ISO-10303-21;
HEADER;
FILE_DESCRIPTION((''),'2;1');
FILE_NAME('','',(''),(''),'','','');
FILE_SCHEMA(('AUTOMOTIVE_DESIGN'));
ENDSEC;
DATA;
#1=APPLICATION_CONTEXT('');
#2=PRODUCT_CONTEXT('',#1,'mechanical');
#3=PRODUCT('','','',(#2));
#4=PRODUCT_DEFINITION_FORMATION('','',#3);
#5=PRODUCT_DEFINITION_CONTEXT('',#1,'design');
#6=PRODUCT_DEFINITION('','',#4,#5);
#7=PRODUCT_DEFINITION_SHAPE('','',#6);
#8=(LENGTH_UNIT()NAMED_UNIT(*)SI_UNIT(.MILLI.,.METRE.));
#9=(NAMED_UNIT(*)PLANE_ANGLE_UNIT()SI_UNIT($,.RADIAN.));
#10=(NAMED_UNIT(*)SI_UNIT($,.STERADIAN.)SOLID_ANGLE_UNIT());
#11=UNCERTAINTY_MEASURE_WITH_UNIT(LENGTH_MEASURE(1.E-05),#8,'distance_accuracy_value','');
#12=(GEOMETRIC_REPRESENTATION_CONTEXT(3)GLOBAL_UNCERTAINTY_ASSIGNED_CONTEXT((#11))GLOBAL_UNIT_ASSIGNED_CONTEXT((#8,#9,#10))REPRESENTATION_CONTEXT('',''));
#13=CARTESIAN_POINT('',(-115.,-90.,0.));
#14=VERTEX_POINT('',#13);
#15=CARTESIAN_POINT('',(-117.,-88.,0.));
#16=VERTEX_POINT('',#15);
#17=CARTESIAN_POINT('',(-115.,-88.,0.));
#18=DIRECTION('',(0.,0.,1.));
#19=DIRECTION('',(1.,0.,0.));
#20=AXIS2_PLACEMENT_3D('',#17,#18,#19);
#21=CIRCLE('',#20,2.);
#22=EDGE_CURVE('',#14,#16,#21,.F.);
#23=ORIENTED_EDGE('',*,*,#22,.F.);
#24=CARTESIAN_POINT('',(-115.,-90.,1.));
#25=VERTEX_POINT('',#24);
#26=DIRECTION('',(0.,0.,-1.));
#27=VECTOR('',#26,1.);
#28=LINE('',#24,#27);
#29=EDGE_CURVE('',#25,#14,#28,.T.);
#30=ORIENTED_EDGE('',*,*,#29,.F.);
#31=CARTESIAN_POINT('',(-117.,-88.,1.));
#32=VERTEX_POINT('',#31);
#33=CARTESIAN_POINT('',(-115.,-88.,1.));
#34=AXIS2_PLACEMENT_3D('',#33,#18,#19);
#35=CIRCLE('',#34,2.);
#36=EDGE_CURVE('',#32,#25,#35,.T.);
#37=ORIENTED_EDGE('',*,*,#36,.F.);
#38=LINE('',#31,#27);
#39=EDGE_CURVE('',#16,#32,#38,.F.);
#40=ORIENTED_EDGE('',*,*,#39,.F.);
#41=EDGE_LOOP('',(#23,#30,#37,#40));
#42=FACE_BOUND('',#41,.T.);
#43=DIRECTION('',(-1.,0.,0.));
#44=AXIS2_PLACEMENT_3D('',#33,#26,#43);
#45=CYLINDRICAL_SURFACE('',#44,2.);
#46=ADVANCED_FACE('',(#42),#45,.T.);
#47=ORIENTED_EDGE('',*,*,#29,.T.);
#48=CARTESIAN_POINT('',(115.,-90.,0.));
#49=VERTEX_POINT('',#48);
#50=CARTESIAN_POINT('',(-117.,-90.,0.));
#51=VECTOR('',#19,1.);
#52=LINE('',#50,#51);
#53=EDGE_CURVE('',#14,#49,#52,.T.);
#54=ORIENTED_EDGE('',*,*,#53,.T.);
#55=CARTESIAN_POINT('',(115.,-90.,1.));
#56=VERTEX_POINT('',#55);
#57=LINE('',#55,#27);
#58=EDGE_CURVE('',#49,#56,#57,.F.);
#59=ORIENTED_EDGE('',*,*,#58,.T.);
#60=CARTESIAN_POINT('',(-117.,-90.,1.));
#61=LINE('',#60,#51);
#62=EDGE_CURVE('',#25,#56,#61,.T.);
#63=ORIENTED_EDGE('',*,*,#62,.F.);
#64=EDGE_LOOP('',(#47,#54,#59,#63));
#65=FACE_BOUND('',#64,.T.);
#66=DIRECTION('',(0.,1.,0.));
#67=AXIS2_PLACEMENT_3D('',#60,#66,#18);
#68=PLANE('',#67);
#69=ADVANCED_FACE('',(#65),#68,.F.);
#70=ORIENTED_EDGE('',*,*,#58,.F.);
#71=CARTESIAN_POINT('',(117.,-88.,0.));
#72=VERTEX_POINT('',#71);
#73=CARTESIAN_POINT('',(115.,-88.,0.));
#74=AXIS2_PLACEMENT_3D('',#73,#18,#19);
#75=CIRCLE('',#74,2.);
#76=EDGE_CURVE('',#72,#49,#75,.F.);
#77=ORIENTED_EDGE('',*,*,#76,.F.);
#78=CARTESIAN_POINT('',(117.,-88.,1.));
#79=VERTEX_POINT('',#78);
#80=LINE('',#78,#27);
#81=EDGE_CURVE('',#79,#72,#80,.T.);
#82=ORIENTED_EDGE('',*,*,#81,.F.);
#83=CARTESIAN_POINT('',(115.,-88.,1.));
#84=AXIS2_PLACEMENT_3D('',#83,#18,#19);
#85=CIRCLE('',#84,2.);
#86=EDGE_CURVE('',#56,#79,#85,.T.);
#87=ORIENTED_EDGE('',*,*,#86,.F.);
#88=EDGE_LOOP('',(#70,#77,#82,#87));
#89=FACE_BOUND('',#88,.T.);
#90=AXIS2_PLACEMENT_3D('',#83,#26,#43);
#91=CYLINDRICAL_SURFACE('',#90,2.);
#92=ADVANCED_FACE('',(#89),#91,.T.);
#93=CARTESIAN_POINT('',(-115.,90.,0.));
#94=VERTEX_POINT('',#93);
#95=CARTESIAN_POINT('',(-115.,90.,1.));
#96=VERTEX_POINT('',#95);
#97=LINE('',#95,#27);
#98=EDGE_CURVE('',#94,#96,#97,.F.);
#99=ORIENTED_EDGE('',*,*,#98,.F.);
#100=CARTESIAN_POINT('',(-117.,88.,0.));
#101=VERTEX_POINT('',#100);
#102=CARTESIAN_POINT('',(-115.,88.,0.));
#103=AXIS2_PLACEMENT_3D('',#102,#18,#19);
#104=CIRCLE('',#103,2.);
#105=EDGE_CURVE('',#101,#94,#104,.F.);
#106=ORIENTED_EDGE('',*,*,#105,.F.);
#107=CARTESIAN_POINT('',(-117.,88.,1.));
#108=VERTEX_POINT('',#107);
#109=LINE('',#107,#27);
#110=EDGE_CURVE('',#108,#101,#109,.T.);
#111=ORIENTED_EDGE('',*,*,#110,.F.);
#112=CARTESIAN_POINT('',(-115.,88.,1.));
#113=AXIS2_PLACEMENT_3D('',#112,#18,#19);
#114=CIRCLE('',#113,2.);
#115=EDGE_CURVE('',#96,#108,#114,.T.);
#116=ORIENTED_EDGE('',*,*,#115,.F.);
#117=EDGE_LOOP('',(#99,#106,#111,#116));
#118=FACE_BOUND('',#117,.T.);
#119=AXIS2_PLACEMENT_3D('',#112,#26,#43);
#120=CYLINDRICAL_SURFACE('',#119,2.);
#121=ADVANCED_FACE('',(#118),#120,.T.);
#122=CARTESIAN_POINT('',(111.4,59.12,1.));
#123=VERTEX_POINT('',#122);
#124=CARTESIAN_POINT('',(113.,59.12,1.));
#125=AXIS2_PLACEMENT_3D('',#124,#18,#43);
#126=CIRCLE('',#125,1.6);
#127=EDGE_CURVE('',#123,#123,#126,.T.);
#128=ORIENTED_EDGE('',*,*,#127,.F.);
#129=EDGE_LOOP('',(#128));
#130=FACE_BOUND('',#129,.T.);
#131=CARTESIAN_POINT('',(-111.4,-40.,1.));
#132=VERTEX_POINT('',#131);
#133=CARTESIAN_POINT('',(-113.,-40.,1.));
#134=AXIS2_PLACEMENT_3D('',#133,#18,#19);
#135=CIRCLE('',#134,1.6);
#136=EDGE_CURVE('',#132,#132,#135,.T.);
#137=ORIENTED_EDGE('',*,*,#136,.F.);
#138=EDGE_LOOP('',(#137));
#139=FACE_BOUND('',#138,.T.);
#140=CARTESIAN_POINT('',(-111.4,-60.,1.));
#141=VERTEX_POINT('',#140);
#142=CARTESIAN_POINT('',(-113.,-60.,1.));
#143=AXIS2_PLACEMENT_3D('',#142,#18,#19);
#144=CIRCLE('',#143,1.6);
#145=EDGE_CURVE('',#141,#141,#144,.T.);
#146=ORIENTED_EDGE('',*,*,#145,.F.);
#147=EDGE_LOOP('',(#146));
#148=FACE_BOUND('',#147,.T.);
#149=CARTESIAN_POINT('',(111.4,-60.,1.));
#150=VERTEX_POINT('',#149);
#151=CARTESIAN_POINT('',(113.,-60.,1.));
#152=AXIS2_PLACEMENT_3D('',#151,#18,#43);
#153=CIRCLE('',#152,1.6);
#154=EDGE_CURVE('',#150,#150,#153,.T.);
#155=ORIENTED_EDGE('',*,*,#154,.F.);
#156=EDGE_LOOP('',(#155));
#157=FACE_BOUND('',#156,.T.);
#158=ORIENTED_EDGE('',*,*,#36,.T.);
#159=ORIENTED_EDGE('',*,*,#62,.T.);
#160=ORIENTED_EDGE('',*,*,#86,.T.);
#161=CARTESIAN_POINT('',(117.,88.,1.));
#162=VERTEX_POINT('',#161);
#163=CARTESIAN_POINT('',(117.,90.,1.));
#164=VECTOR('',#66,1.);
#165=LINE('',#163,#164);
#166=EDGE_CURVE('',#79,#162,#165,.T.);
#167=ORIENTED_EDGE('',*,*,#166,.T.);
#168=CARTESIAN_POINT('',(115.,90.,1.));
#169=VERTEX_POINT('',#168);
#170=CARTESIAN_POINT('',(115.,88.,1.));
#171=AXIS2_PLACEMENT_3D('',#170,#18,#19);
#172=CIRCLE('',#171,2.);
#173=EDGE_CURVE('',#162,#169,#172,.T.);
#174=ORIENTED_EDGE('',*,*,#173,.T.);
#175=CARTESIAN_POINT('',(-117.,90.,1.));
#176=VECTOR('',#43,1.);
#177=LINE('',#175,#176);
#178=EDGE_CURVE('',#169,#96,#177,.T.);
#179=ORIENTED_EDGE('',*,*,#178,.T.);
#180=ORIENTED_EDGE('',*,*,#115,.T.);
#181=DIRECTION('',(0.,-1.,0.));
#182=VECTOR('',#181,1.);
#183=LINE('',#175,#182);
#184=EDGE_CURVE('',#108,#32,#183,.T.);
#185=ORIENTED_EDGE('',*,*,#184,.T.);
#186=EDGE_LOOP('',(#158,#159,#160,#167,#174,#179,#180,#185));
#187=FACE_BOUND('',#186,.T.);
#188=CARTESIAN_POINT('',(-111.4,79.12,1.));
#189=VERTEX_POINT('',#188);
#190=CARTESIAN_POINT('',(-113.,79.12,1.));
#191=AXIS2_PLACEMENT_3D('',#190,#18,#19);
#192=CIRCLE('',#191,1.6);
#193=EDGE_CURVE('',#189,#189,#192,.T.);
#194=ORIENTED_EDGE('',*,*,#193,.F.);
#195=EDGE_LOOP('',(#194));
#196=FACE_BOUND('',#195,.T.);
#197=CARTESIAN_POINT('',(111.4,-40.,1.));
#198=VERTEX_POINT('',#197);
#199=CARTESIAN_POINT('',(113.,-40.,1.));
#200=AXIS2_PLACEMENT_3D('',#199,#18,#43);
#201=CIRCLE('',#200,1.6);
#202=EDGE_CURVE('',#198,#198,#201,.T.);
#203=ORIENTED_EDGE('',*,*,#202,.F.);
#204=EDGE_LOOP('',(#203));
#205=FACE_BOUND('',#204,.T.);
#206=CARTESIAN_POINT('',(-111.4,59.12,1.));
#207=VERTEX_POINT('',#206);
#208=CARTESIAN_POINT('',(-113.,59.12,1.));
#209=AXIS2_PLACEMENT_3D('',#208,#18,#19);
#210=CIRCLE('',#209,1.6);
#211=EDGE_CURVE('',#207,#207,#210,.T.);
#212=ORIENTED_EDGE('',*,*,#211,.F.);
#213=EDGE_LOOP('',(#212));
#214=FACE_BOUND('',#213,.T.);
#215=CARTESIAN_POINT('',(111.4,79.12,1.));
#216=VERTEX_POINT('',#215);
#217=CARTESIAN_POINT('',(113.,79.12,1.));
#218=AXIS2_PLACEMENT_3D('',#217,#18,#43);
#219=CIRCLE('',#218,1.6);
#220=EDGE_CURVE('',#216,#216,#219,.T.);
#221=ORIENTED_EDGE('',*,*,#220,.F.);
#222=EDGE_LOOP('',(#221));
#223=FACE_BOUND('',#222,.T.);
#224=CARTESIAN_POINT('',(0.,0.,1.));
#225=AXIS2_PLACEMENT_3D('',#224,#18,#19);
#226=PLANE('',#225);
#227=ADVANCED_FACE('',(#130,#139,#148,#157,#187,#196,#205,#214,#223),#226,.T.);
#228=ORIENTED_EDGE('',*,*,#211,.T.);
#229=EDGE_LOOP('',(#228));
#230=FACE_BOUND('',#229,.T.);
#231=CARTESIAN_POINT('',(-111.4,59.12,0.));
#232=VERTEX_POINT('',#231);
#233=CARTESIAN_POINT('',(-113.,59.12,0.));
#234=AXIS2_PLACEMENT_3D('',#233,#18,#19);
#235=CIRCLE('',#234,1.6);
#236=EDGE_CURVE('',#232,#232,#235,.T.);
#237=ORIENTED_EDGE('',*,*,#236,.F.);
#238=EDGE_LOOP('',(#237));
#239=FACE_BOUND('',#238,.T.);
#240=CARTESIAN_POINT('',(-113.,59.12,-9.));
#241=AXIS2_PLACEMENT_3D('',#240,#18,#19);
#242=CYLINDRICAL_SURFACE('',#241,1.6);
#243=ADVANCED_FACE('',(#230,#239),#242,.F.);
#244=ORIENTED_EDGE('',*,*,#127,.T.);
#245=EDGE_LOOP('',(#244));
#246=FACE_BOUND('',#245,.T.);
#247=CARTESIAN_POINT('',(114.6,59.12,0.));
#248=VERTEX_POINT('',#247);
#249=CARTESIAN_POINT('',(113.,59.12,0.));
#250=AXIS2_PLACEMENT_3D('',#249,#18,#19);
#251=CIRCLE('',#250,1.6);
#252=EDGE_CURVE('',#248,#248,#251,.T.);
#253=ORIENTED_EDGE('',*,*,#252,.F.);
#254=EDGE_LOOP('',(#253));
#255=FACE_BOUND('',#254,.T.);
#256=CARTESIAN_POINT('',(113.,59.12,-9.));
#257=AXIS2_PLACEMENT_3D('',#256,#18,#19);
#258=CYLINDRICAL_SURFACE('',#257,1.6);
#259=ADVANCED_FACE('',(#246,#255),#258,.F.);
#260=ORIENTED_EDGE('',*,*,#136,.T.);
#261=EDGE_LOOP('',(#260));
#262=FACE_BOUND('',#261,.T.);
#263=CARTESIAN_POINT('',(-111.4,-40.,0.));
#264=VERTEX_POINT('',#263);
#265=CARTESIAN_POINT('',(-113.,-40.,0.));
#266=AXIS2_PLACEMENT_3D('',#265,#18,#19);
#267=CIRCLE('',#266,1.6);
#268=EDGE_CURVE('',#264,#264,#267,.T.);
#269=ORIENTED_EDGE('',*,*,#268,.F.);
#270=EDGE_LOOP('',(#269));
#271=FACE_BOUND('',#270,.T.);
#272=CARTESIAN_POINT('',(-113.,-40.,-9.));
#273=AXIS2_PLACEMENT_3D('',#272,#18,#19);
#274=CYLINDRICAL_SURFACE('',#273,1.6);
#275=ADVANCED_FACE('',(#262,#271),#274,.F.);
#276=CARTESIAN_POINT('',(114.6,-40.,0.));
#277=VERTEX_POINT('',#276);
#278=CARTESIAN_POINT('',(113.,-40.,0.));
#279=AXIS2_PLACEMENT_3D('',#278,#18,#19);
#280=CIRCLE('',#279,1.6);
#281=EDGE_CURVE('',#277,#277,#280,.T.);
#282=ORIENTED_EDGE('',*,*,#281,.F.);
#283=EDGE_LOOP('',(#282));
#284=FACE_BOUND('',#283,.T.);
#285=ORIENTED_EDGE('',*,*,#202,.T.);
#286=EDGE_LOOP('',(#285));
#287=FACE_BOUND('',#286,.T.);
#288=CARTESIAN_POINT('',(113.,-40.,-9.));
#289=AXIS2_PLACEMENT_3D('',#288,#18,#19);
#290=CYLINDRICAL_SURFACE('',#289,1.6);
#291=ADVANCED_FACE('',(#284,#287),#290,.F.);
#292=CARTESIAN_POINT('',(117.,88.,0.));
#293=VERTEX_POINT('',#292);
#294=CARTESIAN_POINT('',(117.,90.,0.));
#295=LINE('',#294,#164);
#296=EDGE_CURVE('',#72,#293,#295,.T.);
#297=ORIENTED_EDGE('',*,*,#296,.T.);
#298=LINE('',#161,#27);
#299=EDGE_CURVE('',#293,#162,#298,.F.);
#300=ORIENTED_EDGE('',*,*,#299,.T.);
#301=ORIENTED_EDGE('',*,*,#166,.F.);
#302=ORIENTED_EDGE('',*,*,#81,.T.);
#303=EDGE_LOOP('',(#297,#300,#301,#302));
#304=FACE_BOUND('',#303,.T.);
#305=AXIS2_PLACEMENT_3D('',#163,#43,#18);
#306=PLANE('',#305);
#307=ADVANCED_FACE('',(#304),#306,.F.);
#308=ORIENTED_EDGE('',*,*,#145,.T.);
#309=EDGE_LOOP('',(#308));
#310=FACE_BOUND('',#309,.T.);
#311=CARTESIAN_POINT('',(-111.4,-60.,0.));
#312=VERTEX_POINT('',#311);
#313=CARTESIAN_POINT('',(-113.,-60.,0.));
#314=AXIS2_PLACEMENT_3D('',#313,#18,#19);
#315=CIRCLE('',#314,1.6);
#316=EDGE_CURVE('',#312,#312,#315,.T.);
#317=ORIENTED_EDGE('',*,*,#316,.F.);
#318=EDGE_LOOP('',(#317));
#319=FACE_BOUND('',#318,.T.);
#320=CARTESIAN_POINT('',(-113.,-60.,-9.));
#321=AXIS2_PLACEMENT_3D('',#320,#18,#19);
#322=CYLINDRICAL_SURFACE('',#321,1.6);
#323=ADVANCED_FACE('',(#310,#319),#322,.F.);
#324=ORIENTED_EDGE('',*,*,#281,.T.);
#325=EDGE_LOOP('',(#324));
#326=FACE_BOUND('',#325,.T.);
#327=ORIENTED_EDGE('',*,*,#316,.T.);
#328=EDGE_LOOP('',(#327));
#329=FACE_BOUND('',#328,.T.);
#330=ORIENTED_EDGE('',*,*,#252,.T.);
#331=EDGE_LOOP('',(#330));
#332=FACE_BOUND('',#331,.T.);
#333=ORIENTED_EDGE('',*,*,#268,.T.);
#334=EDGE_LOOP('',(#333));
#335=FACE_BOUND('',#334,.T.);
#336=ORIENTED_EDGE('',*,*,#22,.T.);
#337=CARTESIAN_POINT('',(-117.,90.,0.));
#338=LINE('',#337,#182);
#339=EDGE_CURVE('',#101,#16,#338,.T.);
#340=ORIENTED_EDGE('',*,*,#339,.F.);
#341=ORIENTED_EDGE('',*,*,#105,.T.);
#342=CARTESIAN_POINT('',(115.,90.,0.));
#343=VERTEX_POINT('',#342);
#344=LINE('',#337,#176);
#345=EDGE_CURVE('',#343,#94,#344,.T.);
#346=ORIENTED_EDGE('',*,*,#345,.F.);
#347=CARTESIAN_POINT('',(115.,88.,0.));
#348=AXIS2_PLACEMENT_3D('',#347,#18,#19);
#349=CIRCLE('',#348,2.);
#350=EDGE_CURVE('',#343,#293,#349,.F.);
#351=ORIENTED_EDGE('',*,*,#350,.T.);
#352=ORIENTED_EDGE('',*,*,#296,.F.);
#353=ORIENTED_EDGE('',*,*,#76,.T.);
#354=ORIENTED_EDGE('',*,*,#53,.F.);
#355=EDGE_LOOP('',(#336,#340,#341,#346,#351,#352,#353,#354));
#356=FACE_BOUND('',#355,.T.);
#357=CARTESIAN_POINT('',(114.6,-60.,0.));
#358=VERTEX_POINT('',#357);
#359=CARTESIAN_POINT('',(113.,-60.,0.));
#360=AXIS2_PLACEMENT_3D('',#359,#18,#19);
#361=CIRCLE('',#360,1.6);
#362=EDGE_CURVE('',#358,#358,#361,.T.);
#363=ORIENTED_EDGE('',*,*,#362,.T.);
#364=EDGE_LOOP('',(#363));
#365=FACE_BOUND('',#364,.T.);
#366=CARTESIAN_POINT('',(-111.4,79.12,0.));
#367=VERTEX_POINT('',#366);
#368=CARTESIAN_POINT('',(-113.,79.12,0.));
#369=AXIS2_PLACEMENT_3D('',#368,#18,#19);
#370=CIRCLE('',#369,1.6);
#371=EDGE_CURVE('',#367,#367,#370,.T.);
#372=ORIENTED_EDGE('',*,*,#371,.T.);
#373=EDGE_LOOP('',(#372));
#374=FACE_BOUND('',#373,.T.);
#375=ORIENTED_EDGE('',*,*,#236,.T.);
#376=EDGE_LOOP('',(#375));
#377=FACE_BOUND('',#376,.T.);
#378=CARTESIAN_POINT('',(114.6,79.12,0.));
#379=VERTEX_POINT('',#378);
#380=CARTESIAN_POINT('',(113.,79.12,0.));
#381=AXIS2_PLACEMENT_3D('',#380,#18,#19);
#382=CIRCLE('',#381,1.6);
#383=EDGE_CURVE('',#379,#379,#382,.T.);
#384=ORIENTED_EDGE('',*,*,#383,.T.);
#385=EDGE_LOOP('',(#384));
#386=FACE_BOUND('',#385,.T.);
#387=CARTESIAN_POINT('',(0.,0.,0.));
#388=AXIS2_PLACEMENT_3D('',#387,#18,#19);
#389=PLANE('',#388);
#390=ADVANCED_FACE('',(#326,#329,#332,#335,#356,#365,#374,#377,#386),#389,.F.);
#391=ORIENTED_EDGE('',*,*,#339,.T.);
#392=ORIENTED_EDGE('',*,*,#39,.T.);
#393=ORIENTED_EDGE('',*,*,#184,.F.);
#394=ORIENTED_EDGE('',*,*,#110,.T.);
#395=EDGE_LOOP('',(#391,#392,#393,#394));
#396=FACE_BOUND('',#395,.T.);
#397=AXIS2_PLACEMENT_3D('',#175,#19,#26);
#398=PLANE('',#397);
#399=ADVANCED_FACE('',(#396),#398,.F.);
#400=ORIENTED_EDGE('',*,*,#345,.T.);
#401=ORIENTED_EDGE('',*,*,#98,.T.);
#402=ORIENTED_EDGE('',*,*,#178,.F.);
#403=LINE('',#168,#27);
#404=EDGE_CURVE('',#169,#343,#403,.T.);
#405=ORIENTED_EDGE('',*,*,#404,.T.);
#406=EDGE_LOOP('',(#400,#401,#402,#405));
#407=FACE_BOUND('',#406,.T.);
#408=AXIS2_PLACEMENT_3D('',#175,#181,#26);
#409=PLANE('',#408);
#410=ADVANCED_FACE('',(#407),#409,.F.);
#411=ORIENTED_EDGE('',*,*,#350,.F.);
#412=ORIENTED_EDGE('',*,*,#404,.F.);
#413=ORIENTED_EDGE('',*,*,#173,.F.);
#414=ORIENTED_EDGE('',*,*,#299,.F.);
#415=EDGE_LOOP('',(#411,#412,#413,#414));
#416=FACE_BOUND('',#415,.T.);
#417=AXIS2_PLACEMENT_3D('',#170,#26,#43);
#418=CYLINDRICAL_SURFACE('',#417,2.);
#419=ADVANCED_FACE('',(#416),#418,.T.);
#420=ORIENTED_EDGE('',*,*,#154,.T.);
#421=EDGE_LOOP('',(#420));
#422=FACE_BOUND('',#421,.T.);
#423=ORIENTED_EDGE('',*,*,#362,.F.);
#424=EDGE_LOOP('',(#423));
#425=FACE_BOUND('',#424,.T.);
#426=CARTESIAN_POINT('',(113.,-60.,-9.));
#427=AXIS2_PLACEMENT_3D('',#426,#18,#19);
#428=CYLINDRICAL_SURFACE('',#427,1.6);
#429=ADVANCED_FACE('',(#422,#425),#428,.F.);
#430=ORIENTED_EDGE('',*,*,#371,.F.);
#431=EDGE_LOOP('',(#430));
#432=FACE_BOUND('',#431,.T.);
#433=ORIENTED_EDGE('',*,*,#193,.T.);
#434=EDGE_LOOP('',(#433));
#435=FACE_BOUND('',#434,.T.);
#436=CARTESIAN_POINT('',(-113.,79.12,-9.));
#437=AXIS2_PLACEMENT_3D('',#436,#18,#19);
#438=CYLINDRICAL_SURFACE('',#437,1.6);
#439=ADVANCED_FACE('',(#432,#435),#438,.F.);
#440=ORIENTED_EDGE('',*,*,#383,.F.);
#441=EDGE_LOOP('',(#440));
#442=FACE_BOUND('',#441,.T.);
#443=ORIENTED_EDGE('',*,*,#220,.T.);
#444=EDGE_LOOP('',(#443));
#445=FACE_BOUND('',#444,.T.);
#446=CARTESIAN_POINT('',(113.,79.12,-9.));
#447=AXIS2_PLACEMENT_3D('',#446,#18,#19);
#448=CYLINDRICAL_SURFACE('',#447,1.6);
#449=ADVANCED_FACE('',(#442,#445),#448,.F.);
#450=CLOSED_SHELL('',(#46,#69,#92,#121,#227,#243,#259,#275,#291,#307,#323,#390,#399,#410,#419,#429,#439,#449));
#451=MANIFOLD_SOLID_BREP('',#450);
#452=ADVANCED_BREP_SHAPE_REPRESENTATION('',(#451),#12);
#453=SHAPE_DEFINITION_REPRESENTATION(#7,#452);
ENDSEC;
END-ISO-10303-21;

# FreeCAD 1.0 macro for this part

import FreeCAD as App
import Part
import Sketcher


def edges_at(feature, points):
    """Names of the edges that pass closest to the given points."""
    edges = feature.Shape.Edges
    near = lambda p: min(range(len(edges)), key=lambda i: edges[i].distToShape(Part.Vertex(*p))[0])
    return sorted({f"Edge{near(p) + 1}" for p in points})

doc = App.newDocument("Part")
body = doc.addObject("PartDesign::Body", "Body")

# Sketch on XY plane
sketch1 = doc.addObject("Sketcher::SketchObject", "Sketch")
body.addObject(sketch1)
sketch1.AttachmentSupport = (doc.XY_Plane, [""])
sketch1.MapMode = "FlatFace"
sketch1.addGeometry([
    Part.LineSegment(App.Vector(-117, 90, 0), App.Vector(-117, -90, 0)),
    Part.LineSegment(App.Vector(-117, -90, 0), App.Vector(117, -90, 0)),
    Part.LineSegment(App.Vector(117, -90, 0), App.Vector(117, 90, 0)),
    Part.LineSegment(App.Vector(117, 90, 0), App.Vector(-117, 90, 0)),
], False)
sketch1.addConstraint([
    Sketcher.Constraint("Coincident", 0, 2, 1, 1),
    Sketcher.Constraint("Coincident", 1, 2, 2, 1),
    Sketcher.Constraint("Coincident", 2, 2, 3, 1),
    Sketcher.Constraint("Coincident", 3, 2, 0, 1),
    Sketcher.Constraint("Vertical", 0),
    Sketcher.Constraint("Horizontal", 1),
    Sketcher.Constraint("Vertical", 2),
    Sketcher.Constraint("Horizontal", 3),
    Sketcher.Constraint("Symmetric", 0, 2, 2, 2, -1, 1),
    Sketcher.Constraint("DistanceX", 1, 1, 1, 2, 234.0),
    Sketcher.Constraint("DistanceY", 0, 2, 0, 1, 180.0),
])
pad1 = doc.addObject("PartDesign::Pad", "Pad")
body.addObject(pad1)
pad1.Profile = sketch1
pad1.Length = 1

# Sketch on XY plane
sketch2 = doc.addObject("Sketcher::SketchObject", "Sketch001")
body.addObject(sketch2)
sketch2.AttachmentSupport = (doc.XY_Plane, [""])
sketch2.MapMode = "FlatFace"
sketch2.AttachmentOffset = App.Placement(App.Vector(0, 0, 1), App.Rotation())
sketch2.addGeometry([
    Part.Circle(App.Vector(-113, -60, 0), App.Vector(0, 0, 1), 1.6),  # 0
    Part.Circle(App.Vector(-113, -40, 0), App.Vector(0, 0, 1), 1.6),  # 1
    Part.Circle(App.Vector(-113, 59.1, 0), App.Vector(0, 0, 1), 1.6),  # 2
    Part.Circle(App.Vector(-113, 79.1, 0), App.Vector(0, 0, 1), 1.6),  # 3
    Part.Circle(App.Vector(113, -60, 0), App.Vector(0, 0, 1), 1.6),  # 4
    Part.Circle(App.Vector(113, -40, 0), App.Vector(0, 0, 1), 1.6),  # 5
    Part.Circle(App.Vector(113, 59.1, 0), App.Vector(0, 0, 1), 1.6),  # 6
    Part.Circle(App.Vector(113, 79.1, 0), App.Vector(0, 0, 1), 1.6),  # 7
], False)
sketch2.addConstraint([
    Sketcher.Constraint("Equal", 0, 1),
    Sketcher.Constraint("Equal", 1, 2),
    Sketcher.Constraint("Equal", 2, 3),
    Sketcher.Constraint("Equal", 3, 4),
    Sketcher.Constraint("Equal", 4, 5),
    Sketcher.Constraint("Equal", 5, 6),
    Sketcher.Constraint("Equal", 6, 7),
    Sketcher.Constraint("Symmetric", 0, 3, 4, 3, -2),
    Sketcher.Constraint("Symmetric", 1, 3, 5, 3, -2),
    Sketcher.Constraint("Symmetric", 2, 3, 6, 3, -2),
    Sketcher.Constraint("Symmetric", 3, 3, 7, 3, -2),
    Sketcher.Constraint("Vertical", 0, 3, 1, 3),
    Sketcher.Constraint("Vertical", 1, 3, 2, 3),
    Sketcher.Constraint("Vertical", 2, 3, 3, 3),
    Sketcher.Constraint("Diameter", 0, 3.2),
    Sketcher.Constraint("DistanceX", 0, 3, -1, 1, 113.0),
    Sketcher.Constraint("DistanceY", 0, 3, -1, 1, 60.0),
    Sketcher.Constraint("DistanceY", 1, 3, -1, 1, 40.0),
    Sketcher.Constraint("DistanceY", 2, 3, 3, 3, 20.0),
    Sketcher.Constraint("DistanceY", -1, 1, 2, 3, 59.12),
])
pocket1 = doc.addObject("PartDesign::Pocket", "Pocket")
body.addObject(pocket1)
pocket1.Profile = sketch2
pocket1.Length = 10
doc.recompute()

fillet = doc.addObject("PartDesign::Fillet", "Fillet")
body.addObject(fillet)
fillet.Base = (pocket1, edges_at(pocket1, [
    (117, -90, 0.5),
    (-117, -90, 0.5),
    (-117, 90, 0.5),
    (117, 90, 0.5),
]))
fillet.Radius = 2

doc.recompute()
